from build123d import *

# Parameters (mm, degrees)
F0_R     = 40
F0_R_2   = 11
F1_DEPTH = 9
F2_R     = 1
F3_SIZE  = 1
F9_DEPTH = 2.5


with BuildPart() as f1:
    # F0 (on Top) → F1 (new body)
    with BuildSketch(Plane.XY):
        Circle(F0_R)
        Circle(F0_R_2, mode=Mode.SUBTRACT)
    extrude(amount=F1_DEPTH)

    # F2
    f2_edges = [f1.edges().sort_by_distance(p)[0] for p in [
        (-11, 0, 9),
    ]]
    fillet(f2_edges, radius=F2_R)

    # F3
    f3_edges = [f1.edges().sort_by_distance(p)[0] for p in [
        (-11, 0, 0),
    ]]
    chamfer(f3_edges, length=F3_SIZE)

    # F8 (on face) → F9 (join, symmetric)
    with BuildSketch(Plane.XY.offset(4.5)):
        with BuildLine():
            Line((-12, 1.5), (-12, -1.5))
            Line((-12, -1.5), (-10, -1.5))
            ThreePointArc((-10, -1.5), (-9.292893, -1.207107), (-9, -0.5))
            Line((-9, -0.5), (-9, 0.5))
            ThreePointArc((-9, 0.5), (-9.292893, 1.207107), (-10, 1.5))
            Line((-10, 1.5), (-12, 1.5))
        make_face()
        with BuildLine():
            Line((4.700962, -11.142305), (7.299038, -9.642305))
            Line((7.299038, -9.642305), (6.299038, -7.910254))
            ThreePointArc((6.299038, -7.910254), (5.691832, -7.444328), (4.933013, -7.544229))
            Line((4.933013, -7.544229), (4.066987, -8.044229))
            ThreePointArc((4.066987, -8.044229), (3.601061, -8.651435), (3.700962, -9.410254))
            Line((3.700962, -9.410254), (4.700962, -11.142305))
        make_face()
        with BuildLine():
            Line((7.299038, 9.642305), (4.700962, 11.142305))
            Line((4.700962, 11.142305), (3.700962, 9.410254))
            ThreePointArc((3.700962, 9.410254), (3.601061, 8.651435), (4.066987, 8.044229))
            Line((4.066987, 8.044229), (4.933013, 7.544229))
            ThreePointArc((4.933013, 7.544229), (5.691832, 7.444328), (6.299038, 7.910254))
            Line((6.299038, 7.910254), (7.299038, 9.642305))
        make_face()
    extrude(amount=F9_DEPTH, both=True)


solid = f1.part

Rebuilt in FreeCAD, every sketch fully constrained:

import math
import FreeCAD as App
import Part
import Sketcher
Q = App.Units.Quantity


def edges_at(feature, points):
    """Names of the edges that pass closest to the given points."""
    edges = feature.Shape.Edges
    near = lambda p: min(range(len(edges)), key=lambda i: edges[i].distToShape(Part.Vertex(*p))[0])
    return sorted({f"Edge{near(p) + 1}" for p in points})

doc = App.newDocument("Part")
params = doc.addObject("Spreadsheet::Sheet", "Params")
for row, (alias, value) in enumerate([
    ("sketch1_diameter", "80 mm"),
    ("sketch1_diameter2", "22 mm"),
    ("pad1_length", "9 mm"),
    ("fillet_radius", "1 mm"),
    ("chamfer_size", "1 mm"),
    ("sketch2_radius", "0.999999 mm"),
    ("sketch2_width", "2 mm"),
    ("sketch2_height", "3 mm"),
    ("sketch2_length", "3 mm"),
    ("sketch2_length2", "2 mm"),
    ("pad2_length", "5 mm"),
], start=1):
    params.set(f"A{row}", alias)
    params.set(f"B{row}", "=" + value)
    params.setAlias(f"B{row}", alias)

body = doc.addObject("PartDesign::Body", "Body")

# Sketch on XY plane
sketch1 = body.newObject("Sketcher::SketchObject", "Sketch")
sketch1.AttachmentSupport = (doc.getObject("XY_Plane"), [""])
sketch1.MapMode = "FlatFace"
sketch1.addGeometry([
    Part.Circle(App.Vector(0, 0, 0), App.Vector(0, 0, 1), 40),
    Part.Circle(App.Vector(0, 0, 0), App.Vector(0, 0, 1), 11),
], False)
sketch1.addConstraint([
    Sketcher.Constraint("Coincident", 0, 3, -1, 1),
    Sketcher.Constraint("Coincident", 1, 3, -1, 1),
    Sketcher.Constraint("Diameter", 0, Q("80 mm")),
    Sketcher.Constraint("Diameter", 1, Q("22 mm")),
])
sketch1.setExpression("Constraints[2]", "Params.sketch1_diameter")
sketch1.setExpression("Constraints[3]", "Params.sketch1_diameter2")
pad1 = body.newObject("PartDesign::Pad", "Pad")
pad1.Profile = sketch1
pad1.setExpression("Length", "Params.pad1_length")
doc.recompute()

fillet = body.newObject("PartDesign::Fillet", "Fillet")
fillet.Base = (pad1, edges_at(pad1, [(-11, 0, 9)]))
fillet.setExpression("Radius", "Params.fillet_radius")
doc.recompute()

chamfer = body.newObject("PartDesign::Chamfer", "Chamfer")
chamfer.Base = (fillet, edges_at(fillet, [(-11, 0, 0)]))
chamfer.setExpression("Size", "Params.chamfer_size")

# Sketch on XY plane
sketch2 = body.newObject("Sketcher::SketchObject", "Sketch001")
sketch2.AttachmentSupport = (doc.getObject("XY_Plane"), [""])
sketch2.MapMode = "FlatFace"
sketch2.AttachmentOffset = App.Placement(App.Vector(0, 0, 4.5), App.Rotation())
sketch2.addGeometry([
    Part.LineSegment(App.Vector(-12, 1.5, 0), App.Vector(-12, -1.5, 0)),  # 0
    Part.LineSegment(App.Vector(-12, -1.5, 0), App.Vector(-10, -1.5, 0)),  # 1
    Part.ArcOfCircle(Part.Circle(App.Vector(-10, -0.5, 0), App.Vector(0, 0, 1), 1), math.radians(-90), math.radians(0)),  # 2
    Part.LineSegment(App.Vector(-9, -0.5, 0), App.Vector(-9, 0.5, 0)),  # 3
    Part.ArcOfCircle(Part.Circle(App.Vector(-10, 0.5, 0), App.Vector(0, 0, 1), 1), math.radians(0), math.radians(90)),  # 4
    Part.LineSegment(App.Vector(-10, 1.5, 0), App.Vector(-12, 1.5, 0)),  # 5
    Part.LineSegment(App.Vector(4.7, -11.1, 0), App.Vector(7.3, -9.6, 0)),  # 6
    Part.LineSegment(App.Vector(7.3, -9.6, 0), App.Vector(6.3, -7.9, 0)),  # 7
    Part.ArcOfCircle(Part.Circle(App.Vector(5.4, -8.4, 0), App.Vector(0, 0, 1), 1), math.radians(30), math.radians(120)),  # 8
    Part.LineSegment(App.Vector(4.9, -7.5, 0), App.Vector(4.1, -8, 0)),  # 9
    Part.ArcOfCircle(Part.Circle(App.Vector(4.6, -8.9, 0), App.Vector(0, 0, 1), 1), math.radians(120), math.radians(210)),  # 10
    Part.LineSegment(App.Vector(3.7, -9.4, 0), App.Vector(4.7, -11.1, 0)),  # 11
    Part.LineSegment(App.Vector(7.3, 9.6, 0), App.Vector(4.7, 11.1, 0)),  # 12
    Part.LineSegment(App.Vector(4.7, 11.1, 0), App.Vector(3.7, 9.4, 0)),  # 13
    Part.ArcOfCircle(Part.Circle(App.Vector(4.6, 8.9, 0), App.Vector(0, 0, 1), 1), math.radians(150), math.radians(240)),  # 14
    Part.LineSegment(App.Vector(4.1, 8, 0), App.Vector(4.9, 7.5, 0)),  # 15
    Part.ArcOfCircle(Part.Circle(App.Vector(5.4, 8.4, 0), App.Vector(0, 0, 1), 1), math.radians(-120), math.radians(-30)),  # 16
    Part.LineSegment(App.Vector(6.3, 7.9, 0), App.Vector(7.3, 9.6, 0)),  # 17
], False)
sketch2.addConstraint([
    Sketcher.Constraint("Coincident", 0, 2, 1, 1),
    Sketcher.Constraint("Tangent", 1, 2, 2, 1),
    Sketcher.Constraint("Tangent", 2, 2, 3, 1),
    Sketcher.Constraint("Tangent", 3, 2, 4, 1),
    Sketcher.Constraint("Tangent", 4, 2, 5, 1),
    Sketcher.Constraint("Coincident", 5, 2, 0, 1),
    Sketcher.Constraint("Coincident", 6, 2, 7, 1),
    Sketcher.Constraint("Tangent", 7, 2, 8, 1),
    Sketcher.Constraint("Tangent", 8, 2, 9, 1),
    Sketcher.Constraint("Tangent", 9, 2, 10, 1),
    Sketcher.Constraint("Tangent", 10, 2, 11, 1),
    Sketcher.Constraint("Coincident", 11, 2, 6, 1),
    Sketcher.Constraint("Coincident", 12, 2, 13, 1),
    Sketcher.Constraint("Tangent", 13, 2, 14, 1),
    Sketcher.Constraint("Tangent", 14, 2, 15, 1),
    Sketcher.Constraint("Tangent", 15, 2, 16, 1),
    Sketcher.Constraint("Tangent", 16, 2, 17, 1),
    Sketcher.Constraint("Coincident", 17, 2, 12, 1),
    Sketcher.Constraint("Vertical", 0),
    Sketcher.Constraint("Horizontal", 1),
    Sketcher.Constraint("Vertical", 3),
    Sketcher.Constraint("Horizontal", 5),
    Sketcher.Constraint("Equal", 2, 4),
    Sketcher.Constraint("Equal", 4, 8),
    Sketcher.Constraint("Equal", 8, 10),
    Sketcher.Constraint("Equal", 10, 14),
    Sketcher.Constraint("Equal", 14, 16),
    Sketcher.Constraint("Symmetric", 10, 3, 14, 3, -1),
    Sketcher.Constraint("Symmetric", 8, 3, 16, 3, -1),
    Sketcher.Constraint("Symmetric", 11, 2, 12, 2, -1),
    Sketcher.Constraint("Symmetric", 6, 2, 17, 2, -1),
    Sketcher.Constraint("Perpendicular", 6, 7),
    Sketcher.Constraint("Perpendicular", 7, 9),
    Sketcher.Constraint("Perpendicular", 9, 11),
    Sketcher.Constraint("Radius", 2, Q("0.999999 mm")),
    Sketcher.Constraint("DistanceX", 1, 1, 1, 2, Q("2 mm")),
    Sketcher.Constraint("DistanceY", 0, 2, 0, 1, Q("3 mm")),
    Sketcher.Constraint("Angle", 6, Q("30.000002 deg")),
    Sketcher.Constraint("Distance", 6, Q("3 mm")),
    Sketcher.Constraint("Distance", 7, Q("2 mm")),
    Sketcher.Constraint("DistanceX", 2, 3, -1, 1, Q("9.999999 mm")),
    Sketcher.Constraint("DistanceY", 2, 3, -1, 1, Q("0.500001 mm")),
    Sketcher.Constraint("DistanceX", -1, 1, 6, 2, Q("7.299038 mm")),
    Sketcher.Constraint("DistanceY", 8, 2, -1, 1, Q("7.544229 mm")),
])
sketch2.setExpression("Constraints[34]", "Params.sketch2_radius")
sketch2.setExpression("Constraints[35]", "Params.sketch2_width")
sketch2.setExpression("Constraints[36]", "Params.sketch2_height")
sketch2.setExpression("Constraints[38]", "Params.sketch2_length")
sketch2.setExpression("Constraints[39]", "Params.sketch2_length2")
pad2 = body.newObject("PartDesign::Pad", "Pad001")
pad2.Profile = sketch2
pad2.setExpression("Length", "Params.pad2_length")
pad2.Midplane = True

doc.recompute()
